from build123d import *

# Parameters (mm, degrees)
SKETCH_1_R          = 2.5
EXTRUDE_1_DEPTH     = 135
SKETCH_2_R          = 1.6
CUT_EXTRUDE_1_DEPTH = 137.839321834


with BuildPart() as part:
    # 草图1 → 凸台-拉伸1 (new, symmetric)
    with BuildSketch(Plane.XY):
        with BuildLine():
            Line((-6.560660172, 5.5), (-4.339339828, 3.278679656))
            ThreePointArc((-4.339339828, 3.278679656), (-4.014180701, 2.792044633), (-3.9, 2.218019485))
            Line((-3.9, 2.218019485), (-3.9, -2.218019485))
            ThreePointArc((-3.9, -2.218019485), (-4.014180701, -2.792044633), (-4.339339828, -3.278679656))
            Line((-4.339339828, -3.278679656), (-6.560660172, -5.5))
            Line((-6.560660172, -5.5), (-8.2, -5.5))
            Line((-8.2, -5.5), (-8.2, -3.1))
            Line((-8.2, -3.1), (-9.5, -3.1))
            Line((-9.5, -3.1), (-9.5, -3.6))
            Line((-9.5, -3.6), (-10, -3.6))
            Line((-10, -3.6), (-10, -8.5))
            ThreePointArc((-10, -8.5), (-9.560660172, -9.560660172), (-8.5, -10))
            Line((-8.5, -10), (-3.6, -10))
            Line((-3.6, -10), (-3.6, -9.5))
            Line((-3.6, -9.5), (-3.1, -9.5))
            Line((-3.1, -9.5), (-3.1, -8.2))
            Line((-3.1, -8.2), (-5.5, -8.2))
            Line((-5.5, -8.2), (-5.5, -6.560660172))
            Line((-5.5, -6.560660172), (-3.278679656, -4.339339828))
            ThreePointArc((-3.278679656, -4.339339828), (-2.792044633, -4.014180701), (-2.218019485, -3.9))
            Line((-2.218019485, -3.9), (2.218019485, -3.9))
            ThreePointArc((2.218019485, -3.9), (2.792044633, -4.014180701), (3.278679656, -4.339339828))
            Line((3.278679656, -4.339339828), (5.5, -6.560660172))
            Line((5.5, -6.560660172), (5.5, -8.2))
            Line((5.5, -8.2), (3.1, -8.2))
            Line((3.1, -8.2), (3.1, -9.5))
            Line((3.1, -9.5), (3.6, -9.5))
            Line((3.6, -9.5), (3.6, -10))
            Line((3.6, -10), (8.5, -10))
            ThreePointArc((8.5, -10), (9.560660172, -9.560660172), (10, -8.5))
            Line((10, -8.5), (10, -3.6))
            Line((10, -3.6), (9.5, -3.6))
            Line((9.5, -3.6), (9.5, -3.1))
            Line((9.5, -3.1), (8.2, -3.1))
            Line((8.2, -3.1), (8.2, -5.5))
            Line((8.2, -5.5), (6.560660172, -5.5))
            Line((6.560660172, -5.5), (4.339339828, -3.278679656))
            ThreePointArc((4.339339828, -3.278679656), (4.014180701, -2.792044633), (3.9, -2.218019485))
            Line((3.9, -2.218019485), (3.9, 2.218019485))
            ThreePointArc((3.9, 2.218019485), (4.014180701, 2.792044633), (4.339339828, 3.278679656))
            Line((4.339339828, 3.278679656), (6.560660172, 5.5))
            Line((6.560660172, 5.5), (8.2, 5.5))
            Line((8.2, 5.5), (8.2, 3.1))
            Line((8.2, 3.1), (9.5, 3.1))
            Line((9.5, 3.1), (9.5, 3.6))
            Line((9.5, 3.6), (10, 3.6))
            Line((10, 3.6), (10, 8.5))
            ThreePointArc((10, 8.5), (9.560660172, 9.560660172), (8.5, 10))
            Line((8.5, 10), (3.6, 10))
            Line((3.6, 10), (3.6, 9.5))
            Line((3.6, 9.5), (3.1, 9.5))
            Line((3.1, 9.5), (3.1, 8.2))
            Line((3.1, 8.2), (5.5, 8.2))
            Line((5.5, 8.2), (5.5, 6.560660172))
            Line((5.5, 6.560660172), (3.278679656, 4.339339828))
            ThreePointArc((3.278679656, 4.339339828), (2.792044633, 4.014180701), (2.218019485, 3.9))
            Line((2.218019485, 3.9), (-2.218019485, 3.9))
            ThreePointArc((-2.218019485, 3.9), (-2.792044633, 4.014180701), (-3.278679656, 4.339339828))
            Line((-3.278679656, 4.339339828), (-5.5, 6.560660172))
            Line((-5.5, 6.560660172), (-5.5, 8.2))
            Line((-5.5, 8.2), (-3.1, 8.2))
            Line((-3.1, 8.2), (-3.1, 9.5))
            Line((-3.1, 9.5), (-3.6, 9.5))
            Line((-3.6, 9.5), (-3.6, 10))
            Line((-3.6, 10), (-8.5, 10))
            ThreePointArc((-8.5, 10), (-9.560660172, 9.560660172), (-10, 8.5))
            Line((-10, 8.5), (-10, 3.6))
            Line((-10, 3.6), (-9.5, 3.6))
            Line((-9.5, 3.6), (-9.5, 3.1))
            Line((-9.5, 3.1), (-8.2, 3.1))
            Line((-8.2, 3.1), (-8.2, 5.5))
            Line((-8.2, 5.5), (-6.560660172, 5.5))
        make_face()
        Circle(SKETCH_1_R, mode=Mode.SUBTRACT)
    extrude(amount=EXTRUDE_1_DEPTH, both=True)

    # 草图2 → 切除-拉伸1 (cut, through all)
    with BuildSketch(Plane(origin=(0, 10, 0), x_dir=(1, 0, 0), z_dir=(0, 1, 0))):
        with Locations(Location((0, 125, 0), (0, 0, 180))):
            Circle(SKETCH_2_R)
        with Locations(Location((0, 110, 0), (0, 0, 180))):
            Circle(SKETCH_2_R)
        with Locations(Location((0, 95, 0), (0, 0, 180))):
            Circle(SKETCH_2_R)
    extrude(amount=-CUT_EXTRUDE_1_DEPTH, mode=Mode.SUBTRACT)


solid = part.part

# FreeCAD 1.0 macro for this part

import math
import FreeCAD as App
import Part
import Sketcher
from FreeCAD import Vector
Q = App.Units.Quantity

doc = App.newDocument("Part")
body = doc.addObject("PartDesign::Body", "Body")

# Sketch on XY plane
sketch1 = body.newObject("Sketcher::SketchObject", "Sketch")
sketch1.AttachmentSupport = (doc.getObject("XY_Plane"), [""])
sketch1.MapMode = "FlatFace"
sketch1.addGeometry([
    Part.LineSegment(Vector(-6.56066, 5.5, 0), Vector(-4.33934, 3.27868, 0)),  # 0
    Part.ArcOfCircle(Part.Circle(Vector(-5.4, 2.218019, 0), Vector(0, 0, 1), 1.5), math.radians(0), math.radians(45)),  # 1
    Part.LineSegment(Vector(-3.9, 2.218019, 0), Vector(-3.9, -2.218019, 0)),  # 2
    Part.ArcOfCircle(Part.Circle(Vector(-5.4, -2.218019, 0), Vector(0, 0, 1), 1.5), math.radians(-45), math.radians(0)),  # 3
    Part.LineSegment(Vector(-4.33934, -3.27868, 0), Vector(-6.56066, -5.5, 0)),  # 4
    Part.LineSegment(Vector(-6.56066, -5.5, 0), Vector(-8.2, -5.5, 0)),  # 5
    Part.LineSegment(Vector(-8.2, -5.5, 0), Vector(-8.2, -3.1, 0)),  # 6
    Part.LineSegment(Vector(-8.2, -3.1, 0), Vector(-9.5, -3.1, 0)),  # 7
    Part.LineSegment(Vector(-9.5, -3.1, 0), Vector(-9.5, -3.6, 0)),  # 8
    Part.LineSegment(Vector(-9.5, -3.6, 0), Vector(-10, -3.6, 0)),  # 9
    Part.LineSegment(Vector(-10, -3.6, 0), Vector(-10, -8.5, 0)),  # 10
    Part.ArcOfCircle(Part.Circle(Vector(-8.5, -8.5, 0), Vector(0, 0, 1), 1.5), math.radians(180), math.radians(270)),  # 11
    Part.LineSegment(Vector(-8.5, -10, 0), Vector(-3.6, -10, 0)),  # 12
    Part.LineSegment(Vector(-3.6, -10, 0), Vector(-3.6, -9.5, 0)),  # 13
    Part.LineSegment(Vector(-3.6, -9.5, 0), Vector(-3.1, -9.5, 0)),  # 14
    Part.LineSegment(Vector(-3.1, -9.5, 0), Vector(-3.1, -8.2, 0)),  # 15
    Part.LineSegment(Vector(-3.1, -8.2, 0), Vector(-5.5, -8.2, 0)),  # 16
    Part.LineSegment(Vector(-5.5, -8.2, 0), Vector(-5.5, -6.56066, 0)),  # 17
    Part.LineSegment(Vector(-5.5, -6.56066, 0), Vector(-3.27868, -4.33934, 0)),  # 18
    Part.ArcOfCircle(Part.Circle(Vector(-2.218019, -5.4, 0), Vector(0, 0, 1), 1.5), math.radians(90), math.radians(135)),  # 19
    Part.LineSegment(Vector(-2.218019, -3.9, 0), Vector(2.218019, -3.9, 0)),  # 20
    Part.ArcOfCircle(Part.Circle(Vector(2.218019, -5.4, 0), Vector(0, 0, 1), 1.5), math.radians(45), math.radians(90)),  # 21
    Part.LineSegment(Vector(3.27868, -4.33934, 0), Vector(5.5, -6.56066, 0)),  # 22
    Part.LineSegment(Vector(5.5, -6.56066, 0), Vector(5.5, -8.2, 0)),  # 23
    Part.LineSegment(Vector(5.5, -8.2, 0), Vector(3.1, -8.2, 0)),  # 24
    Part.LineSegment(Vector(3.1, -8.2, 0), Vector(3.1, -9.5, 0)),  # 25
    Part.LineSegment(Vector(3.1, -9.5, 0), Vector(3.6, -9.5, 0)),  # 26
    Part.LineSegment(Vector(3.6, -9.5, 0), Vector(3.6, -10, 0)),  # 27
    Part.LineSegment(Vector(3.6, -10, 0), Vector(8.5, -10, 0)),  # 28
    Part.ArcOfCircle(Part.Circle(Vector(8.5, -8.5, 0), Vector(0, 0, 1), 1.5), math.radians(-90), math.radians(0)),  # 29
    Part.LineSegment(Vector(10, -8.5, 0), Vector(10, -3.6, 0)),  # 30
    Part.LineSegment(Vector(10, -3.6, 0), Vector(9.5, -3.6, 0)),  # 31
    Part.LineSegment(Vector(9.5, -3.6, 0), Vector(9.5, -3.1, 0)),  # 32
    Part.LineSegment(Vector(9.5, -3.1, 0), Vector(8.2, -3.1, 0)),  # 33
    Part.LineSegment(Vector(8.2, -3.1, 0), Vector(8.2, -5.5, 0)),  # 34
    Part.LineSegment(Vector(8.2, -5.5, 0), Vector(6.56066, -5.5, 0)),  # 35
    Part.LineSegment(Vector(6.56066, -5.5, 0), Vector(4.33934, -3.27868, 0)),  # 36
    Part.ArcOfCircle(Part.Circle(Vector(5.4, -2.218019, 0), Vector(0, 0, 1), 1.5), math.radians(180), math.radians(225)),  # 37
    Part.LineSegment(Vector(3.9, -2.218019, 0), Vector(3.9, 2.218019, 0)),  # 38
    Part.ArcOfCircle(Part.Circle(Vector(5.4, 2.218019, 0), Vector(0, 0, 1), 1.5), math.radians(135), math.radians(180)),  # 39
    Part.LineSegment(Vector(4.33934, 3.27868, 0), Vector(6.56066, 5.5, 0)),  # 40
    Part.LineSegment(Vector(6.56066, 5.5, 0), Vector(8.2, 5.5, 0)),  # 41
    Part.LineSegment(Vector(8.2, 5.5, 0), Vector(8.2, 3.1, 0)),  # 42
    Part.LineSegment(Vector(8.2, 3.1, 0), Vector(9.5, 3.1, 0)),  # 43
    Part.LineSegment(Vector(9.5, 3.1, 0), Vector(9.5, 3.6, 0)),  # 44
    Part.LineSegment(Vector(9.5, 3.6, 0), Vector(10, 3.6, 0)),  # 45
    Part.LineSegment(Vector(10, 3.6, 0), Vector(10, 8.5, 0)),  # 46
    Part.ArcOfCircle(Part.Circle(Vector(8.5, 8.5, 0), Vector(0, 0, 1), 1.5), math.radians(0), math.radians(90)),  # 47
    Part.LineSegment(Vector(8.5, 10, 0), Vector(3.6, 10, 0)),  # 48
    Part.LineSegment(Vector(3.6, 10, 0), Vector(3.6, 9.5, 0)),  # 49
    Part.LineSegment(Vector(3.6, 9.5, 0), Vector(3.1, 9.5, 0)),  # 50
    Part.LineSegment(Vector(3.1, 9.5, 0), Vector(3.1, 8.2, 0)),  # 51
    Part.LineSegment(Vector(3.1, 8.2, 0), Vector(5.5, 8.2, 0)),  # 52
    Part.LineSegment(Vector(5.5, 8.2, 0), Vector(5.5, 6.56066, 0)),  # 53
    Part.LineSegment(Vector(5.5, 6.56066, 0), Vector(3.27868, 4.33934, 0)),  # 54
    Part.ArcOfCircle(Part.Circle(Vector(2.218019, 5.4, 0), Vector(0, 0, 1), 1.5), math.radians(-90), math.radians(-45)),  # 55
    Part.LineSegment(Vector(2.218019, 3.9, 0), Vector(-2.218019, 3.9, 0)),  # 56
    Part.ArcOfCircle(Part.Circle(Vector(-2.218019, 5.4, 0), Vector(0, 0, 1), 1.5), math.radians(-135), math.radians(-90)),  # 57
    Part.LineSegment(Vector(-3.27868, 4.33934, 0), Vector(-5.5, 6.56066, 0)),  # 58
    Part.LineSegment(Vector(-5.5, 6.56066, 0), Vector(-5.5, 8.2, 0)),  # 59
    Part.LineSegment(Vector(-5.5, 8.2, 0), Vector(-3.1, 8.2, 0)),  # 60
    Part.LineSegment(Vector(-3.1, 8.2, 0), Vector(-3.1, 9.5, 0)),  # 61
    Part.LineSegment(Vector(-3.1, 9.5, 0), Vector(-3.6, 9.5, 0)),  # 62
    Part.LineSegment(Vector(-3.6, 9.5, 0), Vector(-3.6, 10, 0)),  # 63
    Part.LineSegment(Vector(-3.6, 10, 0), Vector(-8.5, 10, 0)),  # 64
    Part.ArcOfCircle(Part.Circle(Vector(-8.5, 8.5, 0), Vector(0, 0, 1), 1.5), math.radians(90), math.radians(180)),  # 65
    Part.LineSegment(Vector(-10, 8.5, 0), Vector(-10, 3.6, 0)),  # 66
    Part.LineSegment(Vector(-10, 3.6, 0), Vector(-9.5, 3.6, 0)),  # 67
    Part.LineSegment(Vector(-9.5, 3.6, 0), Vector(-9.5, 3.1, 0)),  # 68
    Part.LineSegment(Vector(-9.5, 3.1, 0), Vector(-8.2, 3.1, 0)),  # 69
    Part.LineSegment(Vector(-8.2, 3.1, 0), Vector(-8.2, 5.5, 0)),  # 70
    Part.LineSegment(Vector(-8.2, 5.5, 0), Vector(-6.56066, 5.5, 0)),  # 71
    Part.Circle(Vector(0, 0, 0), Vector(0, 0, 1), 2.5),  # 72
], False)
sketch1.addConstraint([
    Sketcher.Constraint("Tangent", 0, 2, 1, 2),
    Sketcher.Constraint("Tangent", 1, 1, 2, 1),
    Sketcher.Constraint("Tangent", 2, 2, 3, 2),
    Sketcher.Constraint("Tangent", 3, 1, 4, 1),
    Sketcher.Constraint("Coincident", 4, 2, 5, 1),
    Sketcher.Constraint("Coincident", 5, 2, 6, 1),
    Sketcher.Constraint("Coincident", 6, 2, 7, 1),
    Sketcher.Constraint("Coincident", 7, 2, 8, 1),
    Sketcher.Constraint("Coincident", 8, 2, 9, 1),
    Sketcher.Constraint("Coincident", 9, 2, 10, 1),
    Sketcher.Constraint("Tangent", 10, 2, 11, 1),
    Sketcher.Constraint("Tangent", 11, 2, 12, 1),
    Sketcher.Constraint("Coincident", 12, 2, 13, 1),
    Sketcher.Constraint("Coincident", 13, 2, 14, 1),
    Sketcher.Constraint("Coincident", 14, 2, 15, 1),
    Sketcher.Constraint("Coincident", 15, 2, 16, 1),
    Sketcher.Constraint("Coincident", 16, 2, 17, 1),
    Sketcher.Constraint("Coincident", 17, 2, 18, 1),
    Sketcher.Constraint("Tangent", 18, 2, 19, 2),
    Sketcher.Constraint("Tangent", 19, 1, 20, 1),
    Sketcher.Constraint("Tangent", 20, 2, 21, 2),
    Sketcher.Constraint("Tangent", 21, 1, 22, 1),
    Sketcher.Constraint("Coincident", 22, 2, 23, 1),
    Sketcher.Constraint("Coincident", 23, 2, 24, 1),
    Sketcher.Constraint("Coincident", 24, 2, 25, 1),
    Sketcher.Constraint("Coincident", 25, 2, 26, 1),
    Sketcher.Constraint("Coincident", 26, 2, 27, 1),
    Sketcher.Constraint("Coincident", 27, 2, 28, 1),
    Sketcher.Constraint("Tangent", 28, 2, 29, 1),
    Sketcher.Constraint("Tangent", 29, 2, 30, 1),
    Sketcher.Constraint("Coincident", 30, 2, 31, 1),
    Sketcher.Constraint("Coincident", 31, 2, 32, 1),
    Sketcher.Constraint("Coincident", 32, 2, 33, 1),
    Sketcher.Constraint("Coincident", 33, 2, 34, 1),
    Sketcher.Constraint("Coincident", 34, 2, 35, 1),
    Sketcher.Constraint("Coincident", 35, 2, 36, 1),
    Sketcher.Constraint("Tangent", 36, 2, 37, 2),
    Sketcher.Constraint("Tangent", 37, 1, 38, 1),
    Sketcher.Constraint("Tangent", 38, 2, 39, 2),
    Sketcher.Constraint("Tangent", 39, 1, 40, 1),
    Sketcher.Constraint("Coincident", 40, 2, 41, 1),
    Sketcher.Constraint("Coincident", 41, 2, 42, 1),
    Sketcher.Constraint("Coincident", 42, 2, 43, 1),
    Sketcher.Constraint("Coincident", 43, 2, 44, 1),
    Sketcher.Constraint("Coincident", 44, 2, 45, 1),
    Sketcher.Constraint("Coincident", 45, 2, 46, 1),
    Sketcher.Constraint("Tangent", 46, 2, 47, 1),
    Sketcher.Constraint("Tangent", 47, 2, 48, 1),
    Sketcher.Constraint("Coincident", 48, 2, 49, 1),
    Sketcher.Constraint("Coincident", 49, 2, 50, 1),
    Sketcher.Constraint("Coincident", 50, 2, 51, 1),
    Sketcher.Constraint("Coincident", 51, 2, 52, 1),
    Sketcher.Constraint("Coincident", 52, 2, 53, 1),
    Sketcher.Constraint("Coincident", 53, 2, 54, 1),
    Sketcher.Constraint("Tangent", 54, 2, 55, 2),
    Sketcher.Constraint("Tangent", 55, 1, 56, 1),
    Sketcher.Constraint("Tangent", 56, 2, 57, 2),
    Sketcher.Constraint("Tangent", 57, 1, 58, 1),
    Sketcher.Constraint("Coincident", 58, 2, 59, 1),
    Sketcher.Constraint("Coincident", 59, 2, 60, 1),
    Sketcher.Constraint("Coincident", 60, 2, 61, 1),
    Sketcher.Constraint("Coincident", 61, 2, 62, 1),
    Sketcher.Constraint("Coincident", 62, 2, 63, 1),
    Sketcher.Constraint("Coincident", 63, 2, 64, 1),
    Sketcher.Constraint("Tangent", 64, 2, 65, 1),
    Sketcher.Constraint("Tangent", 65, 2, 66, 1),
    Sketcher.Constraint("Coincident", 66, 2, 67, 1),
    Sketcher.Constraint("Coincident", 67, 2, 68, 1),
    Sketcher.Constraint("Coincident", 68, 2, 69, 1),
    Sketcher.Constraint("Coincident", 69, 2, 70, 1),
    Sketcher.Constraint("Coincident", 70, 2, 71, 1),
    Sketcher.Constraint("Coincident", 71, 2, 0, 1),
    Sketcher.Constraint("Vertical", 2),
    Sketcher.Constraint("Horizontal", 5),
    Sketcher.Constraint("Vertical", 6),
    Sketcher.Constraint("Horizontal", 7),
    Sketcher.Constraint("Vertical", 8),
    Sketcher.Constraint("Horizontal", 9),
    Sketcher.Constraint("Vertical", 10),
    Sketcher.Constraint("Horizontal", 12),
    Sketcher.Constraint("Vertical", 13),
    Sketcher.Constraint("Horizontal", 14),
    Sketcher.Constraint("Vertical", 15),
    Sketcher.Constraint("Horizontal", 16),
    Sketcher.Constraint("Vertical", 17),
    Sketcher.Constraint("Horizontal", 20),
    Sketcher.Constraint("Vertical", 23),
    Sketcher.Constraint("Horizontal", 24),
    Sketcher.Constraint("Vertical", 25),
    Sketcher.Constraint("Horizontal", 26),
    Sketcher.Constraint("Vertical", 27),
    Sketcher.Constraint("Horizontal", 28),
    Sketcher.Constraint("Vertical", 30),
    Sketcher.Constraint("Horizontal", 31),
    Sketcher.Constraint("Vertical", 32),
    Sketcher.Constraint("Horizontal", 33),
    Sketcher.Constraint("Vertical", 34),
    Sketcher.Constraint("Horizontal", 35),
    Sketcher.Constraint("Vertical", 38),
    Sketcher.Constraint("Horizontal", 41),
    Sketcher.Constraint("Vertical", 42),
    Sketcher.Constraint("Horizontal", 43),
    Sketcher.Constraint("Vertical", 44),
    Sketcher.Constraint("Horizontal", 45),
    Sketcher.Constraint("Vertical", 46),
    Sketcher.Constraint("Horizontal", 48),
    Sketcher.Constraint("Vertical", 49),
    Sketcher.Constraint("Horizontal", 50),
    Sketcher.Constraint("Vertical", 51),
    Sketcher.Constraint("Horizontal", 52),
    Sketcher.Constraint("Vertical", 53),
    Sketcher.Constraint("Horizontal", 56),
    Sketcher.Constraint("Vertical", 59),
    Sketcher.Constraint("Horizontal", 60),
    Sketcher.Constraint("Vertical", 61),
    Sketcher.Constraint("Horizontal", 62),
    Sketcher.Constraint("Vertical", 63),
    Sketcher.Constraint("Horizontal", 64),
    Sketcher.Constraint("Vertical", 66),
    Sketcher.Constraint("Horizontal", 67),
    Sketcher.Constraint("Vertical", 68),
    Sketcher.Constraint("Horizontal", 69),
    Sketcher.Constraint("Vertical", 70),
    Sketcher.Constraint("Horizontal", 71),
    Sketcher.Constraint("Coincident", 72, 3, -1, 1),
    Sketcher.Constraint("Equal", 1, 3),
    Sketcher.Constraint("Equal", 3, 11),
    Sketcher.Constraint("Equal", 11, 19),
    Sketcher.Constraint("Equal", 19, 21),
    Sketcher.Constraint("Equal", 21, 29),
    Sketcher.Constraint("Equal", 29, 37),
    Sketcher.Constraint("Equal", 37, 39),
    Sketcher.Constraint("Equal", 39, 47),
    Sketcher.Constraint("Equal", 47, 55),
    Sketcher.Constraint("Equal", 55, 57),
    Sketcher.Constraint("Equal", 57, 65),
    Sketcher.Constraint("Symmetric", 1, 3, 37, 3, -1, 1),
    Sketcher.Constraint("Symmetric", 11, 3, 47, 3, -1, 1),
    Sketcher.Constraint("Symmetric", 19, 3, 55, 3, -1, 1),
    Sketcher.Constraint("Symmetric", 29, 3, 65, 3, -1, 1),
    Sketcher.Constraint("Symmetric", 3, 1, 39, 1, -1, 1),
    Sketcher.Constraint("Symmetric", 5, 2, 41, 2, -1, 1),
    Sketcher.Constraint("Symmetric", 7, 2, 43, 2, -1, 1),
    Sketcher.Constraint("Symmetric", 13, 2, 49, 2, -1, 1),
    Sketcher.Constraint("Symmetric", 15, 2, 51, 2, -1, 1),
    Sketcher.Constraint("Symmetric", 17, 2, 53, 2, -1, 1),
    Sketcher.Constraint("Symmetric", 21, 1, 57, 1, -1, 1),
    Sketcher.Constraint("Symmetric", 23, 2, 59, 2, -1, 1),
    Sketcher.Constraint("Symmetric", 25, 2, 61, 2, -1, 1),
    Sketcher.Constraint("Symmetric", 31, 2, 67, 2, -1, 1),
    Sketcher.Constraint("Symmetric", 33, 2, 69, 2, -1, 1),
    Sketcher.Constraint("Symmetric", 35, 2, 71, 2, -1, 1),
    Sketcher.Constraint("Symmetric", 11, 3, 29, 3, -2),
    Sketcher.Constraint("Symmetric", 18, 2, 21, 1, -2),
    Sketcher.Constraint("Symmetric", 16, 2, 23, 2, -2),
    Sketcher.Constraint("Symmetric", 14, 2, 25, 2, -2),
    Sketcher.Constraint("Symmetric", 8, 2, 31, 2, -2),
    Sketcher.Constraint("Symmetric", 6, 2, 33, 2, -2),
    Sketcher.Constraint("Symmetric", 4, 2, 35, 2, -2),
    Sketcher.Constraint("Perpendicular", 0, 4),
    Sketcher.Constraint("Parallel", 4, 18),
    Sketcher.Constraint("Perpendicular", 18, 22),
    Sketcher.Constraint("Horizontal", 45, 2, 66, 2),
    Sketcher.Constraint("Vertical", 27, 2, 48, 2),
    Sketcher.Constraint("Vertical", 13, 2, 62, 2),
    Sketcher.Constraint("Equal", 9, 14),
    Sketcher.Constraint("Equal", 56, 2),
    Sketcher.Constraint("Equal", 60, 6),
    Sketcher.Constraint("Equal", 67, 8),
    Sketcher.Constraint("Equal", 64, 10),
    Sketcher.Constraint("Equal", 8, 13),
    Sketcher.Constraint("Equal", 69, 15),
    Sketcher.Constraint("Equal", 71, 17),
    Sketcher.Constraint("Equal", 4, 18),
    Sketcher.Constraint("Diameter", 72, Q("5 mm")),
    Sketcher.Constraint("Radius", 1, Q("1.5 mm")),
    Sketcher.Constraint("DistanceX", 7, 2, 7, 1, Q("1.3 mm")),
    Sketcher.Constraint("DistanceX", 9, 2, 9, 1, Q("0.5 mm")),
    Sketcher.Constraint("DistanceX", 12, 1, 12, 2, Q("4.9 mm")),
    Sketcher.Constraint("DistanceX", 16, 2, 16, 1, Q("2.4 mm")),
    Sketcher.Constraint("DistanceX", 9, 2, -1, 1, Q("10 mm")),
    Sketcher.Constraint("DistanceX", 1, 3, -1, 1, Q("5.4 mm")),
    Sketcher.Constraint("DistanceX", 5, 2, 5, 1, Q("1.63934 mm")),
])
pad1 = body.newObject("PartDesign::Pad", "Pad")
pad1.Profile = sketch1
pad1.Length = 270
pad1.Midplane = True

# Sketch on XZ plane
sketch2 = body.newObject("Sketcher::SketchObject", "Sketch001")
sketch2.AttachmentSupport = (doc.getObject("XZ_Plane"), [""])
sketch2.MapMode = "FlatFace"
sketch2.AttachmentOffset = App.Placement(Vector(0, 0, -10), App.Rotation())
sketch2.addGeometry([
    Part.Circle(Vector(0, -125, 0), Vector(0, 0, 1), 1.6),
    Part.Circle(Vector(0, -110, 0), Vector(0, 0, 1), 1.6),
    Part.Circle(Vector(0, -95, 0), Vector(0, 0, 1), 1.6),
], False)
sketch2.addConstraint([
    Sketcher.Constraint("Equal", 0, 1),
    Sketcher.Constraint("Equal", 1, 2),
    Sketcher.Constraint("PointOnObject", 0, 3, -2),
    Sketcher.Constraint("PointOnObject", 1, 3, -2),
    Sketcher.Constraint("PointOnObject", 2, 3, -2),
    Sketcher.Constraint("Diameter", 0, Q("3.2 mm")),
    Sketcher.Constraint("DistanceY", 0, 3, -1, 1, Q("125 mm")),
    Sketcher.Constraint("DistanceY", 1, 3, -1, 1, Q("110 mm")),
    Sketcher.Constraint("DistanceY", 2, 3, -1, 1, Q("95 mm")),
])
pocket1 = body.newObject("PartDesign::Pocket", "Pocket")
pocket1.Profile = sketch2
pocket1.Type = "ThroughAll"
pocket1.Reversed = True

doc.recompute()
